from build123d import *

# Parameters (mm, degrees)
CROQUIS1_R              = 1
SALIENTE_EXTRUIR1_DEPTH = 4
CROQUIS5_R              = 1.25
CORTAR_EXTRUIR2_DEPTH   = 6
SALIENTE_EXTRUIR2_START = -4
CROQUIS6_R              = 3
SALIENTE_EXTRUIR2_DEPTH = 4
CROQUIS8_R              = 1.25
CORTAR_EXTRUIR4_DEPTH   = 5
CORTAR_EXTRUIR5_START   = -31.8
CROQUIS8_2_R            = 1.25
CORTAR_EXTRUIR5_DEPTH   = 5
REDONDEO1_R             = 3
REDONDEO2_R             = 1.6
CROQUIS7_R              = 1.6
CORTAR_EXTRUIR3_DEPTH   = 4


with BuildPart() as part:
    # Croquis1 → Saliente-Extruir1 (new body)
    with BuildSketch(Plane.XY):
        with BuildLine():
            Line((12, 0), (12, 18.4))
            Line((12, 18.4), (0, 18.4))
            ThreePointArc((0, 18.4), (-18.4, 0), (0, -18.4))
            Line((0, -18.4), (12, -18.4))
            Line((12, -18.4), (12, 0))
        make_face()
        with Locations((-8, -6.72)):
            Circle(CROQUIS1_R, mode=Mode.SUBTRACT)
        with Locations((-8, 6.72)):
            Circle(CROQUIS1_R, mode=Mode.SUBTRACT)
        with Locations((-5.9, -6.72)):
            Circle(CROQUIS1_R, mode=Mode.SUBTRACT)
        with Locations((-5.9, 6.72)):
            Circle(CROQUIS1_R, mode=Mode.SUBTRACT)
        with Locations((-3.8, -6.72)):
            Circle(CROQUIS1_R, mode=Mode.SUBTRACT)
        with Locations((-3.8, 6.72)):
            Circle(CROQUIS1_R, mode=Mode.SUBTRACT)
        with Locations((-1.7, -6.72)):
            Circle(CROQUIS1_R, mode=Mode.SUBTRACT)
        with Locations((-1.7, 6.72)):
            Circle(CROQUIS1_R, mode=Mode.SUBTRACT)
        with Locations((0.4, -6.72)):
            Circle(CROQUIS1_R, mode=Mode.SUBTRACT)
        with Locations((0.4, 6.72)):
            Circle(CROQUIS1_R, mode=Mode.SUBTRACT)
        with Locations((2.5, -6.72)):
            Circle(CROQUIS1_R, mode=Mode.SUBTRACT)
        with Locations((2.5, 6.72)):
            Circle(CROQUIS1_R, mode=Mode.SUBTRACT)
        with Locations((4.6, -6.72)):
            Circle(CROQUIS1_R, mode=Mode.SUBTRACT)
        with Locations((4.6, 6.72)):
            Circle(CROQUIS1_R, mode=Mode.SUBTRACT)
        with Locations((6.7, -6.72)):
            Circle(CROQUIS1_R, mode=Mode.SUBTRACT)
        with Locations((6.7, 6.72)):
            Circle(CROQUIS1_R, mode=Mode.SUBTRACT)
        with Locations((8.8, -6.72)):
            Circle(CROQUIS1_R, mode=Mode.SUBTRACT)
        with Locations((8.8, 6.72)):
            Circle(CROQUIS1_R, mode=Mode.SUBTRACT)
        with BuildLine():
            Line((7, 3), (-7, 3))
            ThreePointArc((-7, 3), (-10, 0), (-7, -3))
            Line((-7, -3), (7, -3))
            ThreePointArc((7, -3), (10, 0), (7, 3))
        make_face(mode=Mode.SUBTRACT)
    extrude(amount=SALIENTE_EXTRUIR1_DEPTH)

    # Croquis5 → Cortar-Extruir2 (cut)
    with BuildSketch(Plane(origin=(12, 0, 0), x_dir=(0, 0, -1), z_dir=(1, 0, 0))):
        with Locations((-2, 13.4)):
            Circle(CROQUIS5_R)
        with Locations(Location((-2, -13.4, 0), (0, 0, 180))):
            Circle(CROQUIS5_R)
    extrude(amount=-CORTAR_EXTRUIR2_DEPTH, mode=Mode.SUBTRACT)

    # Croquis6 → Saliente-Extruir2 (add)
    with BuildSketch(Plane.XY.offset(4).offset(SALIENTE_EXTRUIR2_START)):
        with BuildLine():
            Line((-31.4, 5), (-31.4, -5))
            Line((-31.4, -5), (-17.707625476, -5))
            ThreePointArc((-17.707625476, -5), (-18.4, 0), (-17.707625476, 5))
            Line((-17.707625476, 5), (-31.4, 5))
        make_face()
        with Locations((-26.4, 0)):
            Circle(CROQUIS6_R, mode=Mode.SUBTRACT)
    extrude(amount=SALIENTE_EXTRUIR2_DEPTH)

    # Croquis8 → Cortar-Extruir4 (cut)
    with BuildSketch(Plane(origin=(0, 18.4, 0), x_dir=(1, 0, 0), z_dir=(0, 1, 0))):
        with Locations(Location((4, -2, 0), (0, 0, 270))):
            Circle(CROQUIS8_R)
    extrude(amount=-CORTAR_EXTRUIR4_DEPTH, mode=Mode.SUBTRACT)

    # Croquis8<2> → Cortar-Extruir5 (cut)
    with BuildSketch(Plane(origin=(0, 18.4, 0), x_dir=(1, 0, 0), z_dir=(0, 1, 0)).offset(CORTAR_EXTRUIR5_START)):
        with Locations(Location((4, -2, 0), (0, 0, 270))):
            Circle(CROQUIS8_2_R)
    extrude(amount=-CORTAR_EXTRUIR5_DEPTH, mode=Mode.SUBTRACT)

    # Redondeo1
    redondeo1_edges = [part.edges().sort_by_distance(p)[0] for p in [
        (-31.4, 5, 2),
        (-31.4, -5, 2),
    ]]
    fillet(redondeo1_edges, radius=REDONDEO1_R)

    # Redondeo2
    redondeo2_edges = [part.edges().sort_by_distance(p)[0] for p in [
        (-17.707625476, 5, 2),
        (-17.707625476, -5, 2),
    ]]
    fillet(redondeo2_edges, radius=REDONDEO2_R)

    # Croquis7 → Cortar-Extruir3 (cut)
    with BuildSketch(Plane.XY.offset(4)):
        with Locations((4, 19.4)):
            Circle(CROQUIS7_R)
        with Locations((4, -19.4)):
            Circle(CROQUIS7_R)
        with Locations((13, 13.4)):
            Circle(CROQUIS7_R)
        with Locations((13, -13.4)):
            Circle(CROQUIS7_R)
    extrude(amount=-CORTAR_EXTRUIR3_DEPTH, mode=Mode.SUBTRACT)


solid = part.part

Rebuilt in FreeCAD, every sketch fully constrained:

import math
import FreeCAD as App
import Part
import Sketcher
Q = App.Units.Quantity


def edges_at(feature, points):
    """Names of the edges that pass closest to the given points."""
    edges = feature.Shape.Edges
    near = lambda p: min(range(len(edges)), key=lambda i: edges[i].distToShape(Part.Vertex(*p))[0])
    return sorted({f"Edge{near(p) + 1}" for p in points})

doc = App.newDocument("Part")
body = doc.addObject("PartDesign::Body", "Body")

sketch1 = body.newObject("Sketcher::SketchObject", "Sketch")
sketch1.AttachmentSupport = (doc.getObject("XY_Plane"), [""])
sketch1.MapMode = "FlatFace"
sketch1.addGeometry(Part.LineSegment(App.Vector(12, 18.4, 0), App.Vector(0, 18.4, 0)), False)
sketch1.addGeometry(Part.ArcOfCircle(Part.Circle(App.Vector(0, 0, 0), App.Vector(0, 0, 1), 18.4), math.radians(90), math.radians(270)), False)
sketch1.addGeometry(Part.LineSegment(App.Vector(0, -18.4, 0), App.Vector(12, -18.4, 0)), False)
sketch1.addGeometry(Part.LineSegment(App.Vector(12, -18.4, 0), App.Vector(12, 18.4, 0)), False)
sketch1.addGeometry(Part.Circle(App.Vector(-8, -6.7, 0), App.Vector(0, 0, 1), 1), False)
sketch1.addGeometry(Part.Circle(App.Vector(-5.9, -6.7, 0), App.Vector(0, 0, 1), 1), False)
sketch1.addGeometry(Part.Circle(App.Vector(-3.8, -6.7, 0), App.Vector(0, 0, 1), 1), False)
sketch1.addGeometry(Part.Circle(App.Vector(-1.7, -6.7, 0), App.Vector(0, 0, 1), 1), False)
sketch1.addGeometry(Part.Circle(App.Vector(0.4, -6.7, 0), App.Vector(0, 0, 1), 1), False)
sketch1.addGeometry(Part.Circle(App.Vector(2.5, -6.7, 0), App.Vector(0, 0, 1), 1), False)
sketch1.addGeometry(Part.Circle(App.Vector(4.6, -6.7, 0), App.Vector(0, 0, 1), 1), False)
sketch1.addGeometry(Part.Circle(App.Vector(6.7, -6.7, 0), App.Vector(0, 0, 1), 1), False)
sketch1.addGeometry(Part.Circle(App.Vector(8.8, -6.7, 0), App.Vector(0, 0, 1), 1), False)
sketch1.addGeometry(Part.Circle(App.Vector(-8, 6.7, 0), App.Vector(0, 0, 1), 1), False)
sketch1.addGeometry(Part.Circle(App.Vector(-5.9, 6.7, 0), App.Vector(0, 0, 1), 1), False)
sketch1.addGeometry(Part.Circle(App.Vector(-3.8, 6.7, 0), App.Vector(0, 0, 1), 1), False)
sketch1.addGeometry(Part.Circle(App.Vector(-1.7, 6.7, 0), App.Vector(0, 0, 1), 1), False)
sketch1.addGeometry(Part.LineSegment(App.Vector(-7, 3, 0), App.Vector(7, 3, 0)), False)
sketch1.addGeometry(Part.ArcOfCircle(Part.Circle(App.Vector(7, 0, 0), App.Vector(0, 0, 1), 3), math.radians(-90), math.radians(90)), False)
sketch1.addGeometry(Part.LineSegment(App.Vector(7, -3, 0), App.Vector(-7, -3, 0)), False)
sketch1.addGeometry(Part.ArcOfCircle(Part.Circle(App.Vector(-7, 0, 0), App.Vector(0, 0, 1), 3), math.radians(90), math.radians(270)), False)
sketch1.addGeometry(Part.Circle(App.Vector(0.4, 6.7, 0), App.Vector(0, 0, 1), 1), False)
sketch1.addGeometry(Part.Circle(App.Vector(2.5, 6.7, 0), App.Vector(0, 0, 1), 1), False)
sketch1.addGeometry(Part.Circle(App.Vector(4.6, 6.7, 0), App.Vector(0, 0, 1), 1), False)
sketch1.addGeometry(Part.Circle(App.Vector(6.7, 6.7, 0), App.Vector(0, 0, 1), 1), False)
sketch1.addGeometry(Part.Circle(App.Vector(8.8, 6.7, 0), App.Vector(0, 0, 1), 1), False)
sketch1.addConstraint(Sketcher.Constraint("Tangent", 0, 2, 1, 1))
sketch1.addConstraint(Sketcher.Constraint("Tangent", 1, 2, 2, 1))
sketch1.addConstraint(Sketcher.Constraint("Coincident", 2, 2, 3, 1))
sketch1.addConstraint(Sketcher.Constraint("Coincident", 3, 2, 0, 1))
sketch1.addConstraint(Sketcher.Constraint("Tangent", 17, 2, 18, 2))
sketch1.addConstraint(Sketcher.Constraint("Tangent", 18, 1, 19, 1))
sketch1.addConstraint(Sketcher.Constraint("Tangent", 19, 2, 20, 2))
sketch1.addConstraint(Sketcher.Constraint("Tangent", 20, 1, 17, 1))
sketch1.addConstraint(Sketcher.Constraint("Horizontal", 0))
sketch1.addConstraint(Sketcher.Constraint("Horizontal", 2))
sketch1.addConstraint(Sketcher.Constraint("Vertical", 3))
sketch1.addConstraint(Sketcher.Constraint("Horizontal", 17))
sketch1.addConstraint(Sketcher.Constraint("Horizontal", 19))
sketch1.addConstraint(Sketcher.Constraint("Coincident", 1, 3, -1, 1))
sketch1.addConstraint(Sketcher.Constraint("Equal", 4, 5))
sketch1.addConstraint(Sketcher.Constraint("Equal", 5, 6))
sketch1.addConstraint(Sketcher.Constraint("Equal", 6, 7))
sketch1.addConstraint(Sketcher.Constraint("Equal", 7, 8))
sketch1.addConstraint(Sketcher.Constraint("Equal", 8, 9))
sketch1.addConstraint(Sketcher.Constraint("Equal", 9, 10))
sketch1.addConstraint(Sketcher.Constraint("Equal", 10, 11))
sketch1.addConstraint(Sketcher.Constraint("Equal", 11, 12))
sketch1.addConstraint(Sketcher.Constraint("Equal", 12, 13))
sketch1.addConstraint(Sketcher.Constraint("Equal", 13, 14))
sketch1.addConstraint(Sketcher.Constraint("Equal", 14, 15))
sketch1.addConstraint(Sketcher.Constraint("Equal", 15, 16))
sketch1.addConstraint(Sketcher.Constraint("Equal", 16, 21))
sketch1.addConstraint(Sketcher.Constraint("Equal", 21, 22))
sketch1.addConstraint(Sketcher.Constraint("Equal", 22, 23))
sketch1.addConstraint(Sketcher.Constraint("Equal", 23, 24))
sketch1.addConstraint(Sketcher.Constraint("Equal", 24, 25))
sketch1.addConstraint(Sketcher.Constraint("Symmetric", 18, 3, 20, 3, -1, 1))
sketch1.addConstraint(Sketcher.Constraint("Symmetric", 4, 3, 13, 3, -1))
sketch1.addConstraint(Sketcher.Constraint("Symmetric", 5, 3, 14, 3, -1))
sketch1.addConstraint(Sketcher.Constraint("Symmetric", 6, 3, 15, 3, -1))
sketch1.addConstraint(Sketcher.Constraint("Symmetric", 7, 3, 16, 3, -1))
sketch1.addConstraint(Sketcher.Constraint("Symmetric", 8, 3, 21, 3, -1))
sketch1.addConstraint(Sketcher.Constraint("Symmetric", 9, 3, 22, 3, -1))
sketch1.addConstraint(Sketcher.Constraint("Symmetric", 10, 3, 23, 3, -1))
sketch1.addConstraint(Sketcher.Constraint("Symmetric", 11, 3, 24, 3, -1))
sketch1.addConstraint(Sketcher.Constraint("Symmetric", 12, 3, 25, 3, -1))
sketch1.addConstraint(Sketcher.Constraint("Horizontal", 4, 3, 5, 3))
sketch1.addConstraint(Sketcher.Constraint("Horizontal", 5, 3, 6, 3))
sketch1.addConstraint(Sketcher.Constraint("Horizontal", 6, 3, 7, 3))
sketch1.addConstraint(Sketcher.Constraint("Horizontal", 7, 3, 8, 3))
sketch1.addConstraint(Sketcher.Constraint("Horizontal", 8, 3, 9, 3))
sketch1.addConstraint(Sketcher.Constraint("Horizontal", 9, 3, 10, 3))
sketch1.addConstraint(Sketcher.Constraint("Horizontal", 10, 3, 11, 3))
sketch1.addConstraint(Sketcher.Constraint("Horizontal", 11, 3, 12, 3))
sketch1.addConstraint(Sketcher.Constraint("Diameter", 4, Q("2 mm")))
sketch1.addConstraint(Sketcher.Constraint("Radius", 18, Q("3 mm")))
sketch1.addConstraint(Sketcher.Constraint("Radius", 1, Q("18.4 mm")))
sketch1.addConstraint(Sketcher.Constraint("DistanceX", 0, 2, 0, 1, Q("12 mm")))
sketch1.addConstraint(Sketcher.Constraint("DistanceX", 17, 1, 17, 2, Q("14 mm")))
sketch1.addConstraint(Sketcher.Constraint("DistanceX", 4, 3, -1, 1, Q("8 mm")))
sketch1.addConstraint(Sketcher.Constraint("DistanceX", 5, 3, -1, 1, Q("5.9 mm")))
sketch1.addConstraint(Sketcher.Constraint("DistanceX", 6, 3, -1, 1, Q("3.8 mm")))
sketch1.addConstraint(Sketcher.Constraint("DistanceX", 7, 3, -1, 1, Q("1.7 mm")))
sketch1.addConstraint(Sketcher.Constraint("DistanceX", -1, 1, 8, 3, Q("0.4 mm")))
sketch1.addConstraint(Sketcher.Constraint("DistanceX", -1, 1, 9, 3, Q("2.5 mm")))
sketch1.addConstraint(Sketcher.Constraint("DistanceX", -1, 1, 10, 3, Q("4.6 mm")))
sketch1.addConstraint(Sketcher.Constraint("DistanceX", -1, 1, 11, 3, Q("6.7 mm")))
sketch1.addConstraint(Sketcher.Constraint("DistanceX", -1, 1, 12, 3, Q("8.8 mm")))
sketch1.addConstraint(Sketcher.Constraint("DistanceY", 4, 3, -1, 1, Q("6.72 mm")))
pad1 = body.newObject("PartDesign::Pad", "Pad")
pad1.Profile = sketch1
pad1.Length = 4

sketch2 = body.newObject("Sketcher::SketchObject", "Sketch001")
sketch2.AttachmentSupport = (doc.getObject("YZ_Plane"), [""])
sketch2.MapMode = "FlatFace"
sketch2.AttachmentOffset = App.Placement(App.Vector(0, 0, 12), App.Rotation())
sketch2.addGeometry(Part.Circle(App.Vector(13.4, 2, 0), App.Vector(0, 0, 1), 1.2), False)
sketch2.addGeometry(Part.Circle(App.Vector(-13.4, 2, 0), App.Vector(0, 0, 1), 1.2), False)
sketch2.addConstraint(Sketcher.Constraint("Equal", 0, 1))
sketch2.addConstraint(Sketcher.Constraint("Symmetric", 0, 3, 1, 3, -2))
sketch2.addConstraint(Sketcher.Constraint("Diameter", 0, Q("2.5 mm")))
sketch2.addConstraint(Sketcher.Constraint("DistanceY", -1, 1, 0, 3, Q("2 mm")))
sketch2.addConstraint(Sketcher.Constraint("DistanceX", -1, 1, 0, 3, Q("13.4 mm")))
pocket1 = body.newObject("PartDesign::Pocket", "Pocket")
pocket1.Profile = sketch2
pocket1.Length = 6

sketch3 = body.newObject("Sketcher::SketchObject", "Sketch002")
sketch3.AttachmentSupport = (doc.getObject("XY_Plane"), [""])
sketch3.MapMode = "FlatFace"
sketch3.addGeometry(Part.LineSegment(App.Vector(-31.4, 5, 0), App.Vector(-31.4, -5, 0)), False)
sketch3.addGeometry(Part.LineSegment(App.Vector(-31.4, -5, 0), App.Vector(-17.7, -5, 0)), False)
sketch3.addGeometry(Part.ArcOfCircle(Part.Circle(App.Vector(0, 0, 0), App.Vector(0, 0, 1), 18.4), math.radians(164), math.radians(196)), False)
sketch3.addGeometry(Part.LineSegment(App.Vector(-17.7, 5, 0), App.Vector(-31.4, 5, 0)), False)
sketch3.addGeometry(Part.Circle(App.Vector(-26.4, 0, 0), App.Vector(0, 0, 1), 3), False)
sketch3.addConstraint(Sketcher.Constraint("Coincident", 0, 2, 1, 1))
sketch3.addConstraint(Sketcher.Constraint("Coincident", 1, 2, 2, 2))
sketch3.addConstraint(Sketcher.Constraint("Coincident", 2, 1, 3, 1))
sketch3.addConstraint(Sketcher.Constraint("Coincident", 3, 2, 0, 1))
sketch3.addConstraint(Sketcher.Constraint("Vertical", 0))
sketch3.addConstraint(Sketcher.Constraint("Horizontal", 1))
sketch3.addConstraint(Sketcher.Constraint("Horizontal", 3))
sketch3.addConstraint(Sketcher.Constraint("Coincident", 2, 3, -1, 1))
sketch3.addConstraint(Sketcher.Constraint("PointOnObject", 4, 3, -1))
sketch3.addConstraint(Sketcher.Constraint("Vertical", 1, 2, 2, 1))
sketch3.addConstraint(Sketcher.Constraint("Diameter", 4, Q("6 mm")))
sketch3.addConstraint(Sketcher.Constraint("Radius", 2, Q("18.4 mm")))
sketch3.addConstraint(Sketcher.Constraint("DistanceY", 0, 2, 0, 1, Q("10 mm")))
sketch3.addConstraint(Sketcher.Constraint("DistanceX", 0, 2, 4, 3, Q("5 mm")))
sketch3.addConstraint(Sketcher.Constraint("DistanceX", 4, 3, -1, 1, Q("26.4 mm")))
pad2 = body.newObject("PartDesign::Pad", "Pad001")
pad2.Profile = sketch3
pad2.Length = 4

sketch4 = body.newObject("Sketcher::SketchObject", "Sketch003")
sketch4.AttachmentSupport = (doc.getObject("XZ_Plane"), [""])
sketch4.MapMode = "FlatFace"
sketch4.AttachmentOffset = App.Placement(App.Vector(0, 0, -18.4), App.Rotation())
sketch4.addGeometry(Part.Circle(App.Vector(4, 2, 0), App.Vector(0, 0, 1), 1.2), False)
sketch4.addConstraint(Sketcher.Constraint("Diameter", 0, Q("2.5 mm")))
sketch4.addConstraint(Sketcher.Constraint("DistanceX", -1, 1, 0, 3, Q("4 mm")))
sketch4.addConstraint(Sketcher.Constraint("DistanceY", -1, 1, 0, 3, Q("2 mm")))
pocket2 = body.newObject("PartDesign::Pocket", "Pocket001")
pocket2.Profile = sketch4
pocket2.Length = 5
pocket2.Reversed = True

sketch5 = body.newObject("Sketcher::SketchObject", "Sketch004")
sketch5.AttachmentSupport = (doc.getObject("XZ_Plane"), [""])
sketch5.MapMode = "FlatFace"
sketch5.AttachmentOffset = App.Placement(App.Vector(0, 0, 13.4), App.Rotation())
sketch5.addGeometry(Part.Circle(App.Vector(4, 2, 0), App.Vector(0, 0, 1), 1.2), False)
sketch5.addConstraint(Sketcher.Constraint("Diameter", 0, Q("2.5 mm")))
sketch5.addConstraint(Sketcher.Constraint("DistanceX", -1, 1, 0, 3, Q("4 mm")))
sketch5.addConstraint(Sketcher.Constraint("DistanceY", -1, 1, 0, 3, Q("2 mm")))
pocket3 = body.newObject("PartDesign::Pocket", "Pocket002")
pocket3.Profile = sketch5
pocket3.Length = 5
pocket3.Reversed = True
doc.recompute()

fillet = body.newObject("PartDesign::Fillet", "Fillet")
fillet.Base = (pocket3, edges_at(pocket3, [(-31.4, 5, 2), (-31.4, -5, 2)]))
fillet.Radius = 3
doc.recompute()

fillet2 = body.newObject("PartDesign::Fillet", "Fillet001")
fillet2.Base = (fillet, edges_at(fillet, [(-17.708, 5, 2), (-17.708, -5, 2)]))
fillet2.Radius = 1.6

sketch6 = body.newObject("Sketcher::SketchObject", "Sketch005")
sketch6.AttachmentSupport = (doc.getObject("XY_Plane"), [""])
sketch6.MapMode = "FlatFace"
sketch6.AttachmentOffset = App.Placement(App.Vector(0, 0, 4), App.Rotation())
sketch6.addGeometry(Part.Circle(App.Vector(4, 19.4, 0), App.Vector(0, 0, 1), 1.6), False)
sketch6.addGeometry(Part.Circle(App.Vector(4, -19.4, 0), App.Vector(0, 0, 1), 1.6), False)
sketch6.addGeometry(Part.Circle(App.Vector(13, 13.4, 0), App.Vector(0, 0, 1), 1.6), False)
sketch6.addGeometry(Part.Circle(App.Vector(13, -13.4, 0), App.Vector(0, 0, 1), 1.6), False)
sketch6.addConstraint(Sketcher.Constraint("Equal", 0, 1))
sketch6.addConstraint(Sketcher.Constraint("Equal", 1, 2))
sketch6.addConstraint(Sketcher.Constraint("Equal", 2, 3))
sketch6.addConstraint(Sketcher.Constraint("Symmetric", 0, 3, 1, 3, -1))
sketch6.addConstraint(Sketcher.Constraint("Symmetric", 2, 3, 3, 3, -1))
sketch6.addConstraint(Sketcher.Constraint("Diameter", 0, Q("3.2 mm")))
sketch6.addConstraint(Sketcher.Constraint("DistanceX", -1, 1, 0, 3, Q("4 mm")))
sketch6.addConstraint(Sketcher.Constraint("DistanceX", -1, 1, 2, 3, Q("13 mm")))
sketch6.addConstraint(Sketcher.Constraint("DistanceY", 2, 3, 0, 3, Q("6 mm")))
sketch6.addConstraint(Sketcher.Constraint("DistanceY", -1, 1, 0, 3, Q("19.4 mm")))
pocket4 = body.newObject("PartDesign::Pocket", "Pocket003")
pocket4.Profile = sketch6
pocket4.Length = 4

doc.recompute()
